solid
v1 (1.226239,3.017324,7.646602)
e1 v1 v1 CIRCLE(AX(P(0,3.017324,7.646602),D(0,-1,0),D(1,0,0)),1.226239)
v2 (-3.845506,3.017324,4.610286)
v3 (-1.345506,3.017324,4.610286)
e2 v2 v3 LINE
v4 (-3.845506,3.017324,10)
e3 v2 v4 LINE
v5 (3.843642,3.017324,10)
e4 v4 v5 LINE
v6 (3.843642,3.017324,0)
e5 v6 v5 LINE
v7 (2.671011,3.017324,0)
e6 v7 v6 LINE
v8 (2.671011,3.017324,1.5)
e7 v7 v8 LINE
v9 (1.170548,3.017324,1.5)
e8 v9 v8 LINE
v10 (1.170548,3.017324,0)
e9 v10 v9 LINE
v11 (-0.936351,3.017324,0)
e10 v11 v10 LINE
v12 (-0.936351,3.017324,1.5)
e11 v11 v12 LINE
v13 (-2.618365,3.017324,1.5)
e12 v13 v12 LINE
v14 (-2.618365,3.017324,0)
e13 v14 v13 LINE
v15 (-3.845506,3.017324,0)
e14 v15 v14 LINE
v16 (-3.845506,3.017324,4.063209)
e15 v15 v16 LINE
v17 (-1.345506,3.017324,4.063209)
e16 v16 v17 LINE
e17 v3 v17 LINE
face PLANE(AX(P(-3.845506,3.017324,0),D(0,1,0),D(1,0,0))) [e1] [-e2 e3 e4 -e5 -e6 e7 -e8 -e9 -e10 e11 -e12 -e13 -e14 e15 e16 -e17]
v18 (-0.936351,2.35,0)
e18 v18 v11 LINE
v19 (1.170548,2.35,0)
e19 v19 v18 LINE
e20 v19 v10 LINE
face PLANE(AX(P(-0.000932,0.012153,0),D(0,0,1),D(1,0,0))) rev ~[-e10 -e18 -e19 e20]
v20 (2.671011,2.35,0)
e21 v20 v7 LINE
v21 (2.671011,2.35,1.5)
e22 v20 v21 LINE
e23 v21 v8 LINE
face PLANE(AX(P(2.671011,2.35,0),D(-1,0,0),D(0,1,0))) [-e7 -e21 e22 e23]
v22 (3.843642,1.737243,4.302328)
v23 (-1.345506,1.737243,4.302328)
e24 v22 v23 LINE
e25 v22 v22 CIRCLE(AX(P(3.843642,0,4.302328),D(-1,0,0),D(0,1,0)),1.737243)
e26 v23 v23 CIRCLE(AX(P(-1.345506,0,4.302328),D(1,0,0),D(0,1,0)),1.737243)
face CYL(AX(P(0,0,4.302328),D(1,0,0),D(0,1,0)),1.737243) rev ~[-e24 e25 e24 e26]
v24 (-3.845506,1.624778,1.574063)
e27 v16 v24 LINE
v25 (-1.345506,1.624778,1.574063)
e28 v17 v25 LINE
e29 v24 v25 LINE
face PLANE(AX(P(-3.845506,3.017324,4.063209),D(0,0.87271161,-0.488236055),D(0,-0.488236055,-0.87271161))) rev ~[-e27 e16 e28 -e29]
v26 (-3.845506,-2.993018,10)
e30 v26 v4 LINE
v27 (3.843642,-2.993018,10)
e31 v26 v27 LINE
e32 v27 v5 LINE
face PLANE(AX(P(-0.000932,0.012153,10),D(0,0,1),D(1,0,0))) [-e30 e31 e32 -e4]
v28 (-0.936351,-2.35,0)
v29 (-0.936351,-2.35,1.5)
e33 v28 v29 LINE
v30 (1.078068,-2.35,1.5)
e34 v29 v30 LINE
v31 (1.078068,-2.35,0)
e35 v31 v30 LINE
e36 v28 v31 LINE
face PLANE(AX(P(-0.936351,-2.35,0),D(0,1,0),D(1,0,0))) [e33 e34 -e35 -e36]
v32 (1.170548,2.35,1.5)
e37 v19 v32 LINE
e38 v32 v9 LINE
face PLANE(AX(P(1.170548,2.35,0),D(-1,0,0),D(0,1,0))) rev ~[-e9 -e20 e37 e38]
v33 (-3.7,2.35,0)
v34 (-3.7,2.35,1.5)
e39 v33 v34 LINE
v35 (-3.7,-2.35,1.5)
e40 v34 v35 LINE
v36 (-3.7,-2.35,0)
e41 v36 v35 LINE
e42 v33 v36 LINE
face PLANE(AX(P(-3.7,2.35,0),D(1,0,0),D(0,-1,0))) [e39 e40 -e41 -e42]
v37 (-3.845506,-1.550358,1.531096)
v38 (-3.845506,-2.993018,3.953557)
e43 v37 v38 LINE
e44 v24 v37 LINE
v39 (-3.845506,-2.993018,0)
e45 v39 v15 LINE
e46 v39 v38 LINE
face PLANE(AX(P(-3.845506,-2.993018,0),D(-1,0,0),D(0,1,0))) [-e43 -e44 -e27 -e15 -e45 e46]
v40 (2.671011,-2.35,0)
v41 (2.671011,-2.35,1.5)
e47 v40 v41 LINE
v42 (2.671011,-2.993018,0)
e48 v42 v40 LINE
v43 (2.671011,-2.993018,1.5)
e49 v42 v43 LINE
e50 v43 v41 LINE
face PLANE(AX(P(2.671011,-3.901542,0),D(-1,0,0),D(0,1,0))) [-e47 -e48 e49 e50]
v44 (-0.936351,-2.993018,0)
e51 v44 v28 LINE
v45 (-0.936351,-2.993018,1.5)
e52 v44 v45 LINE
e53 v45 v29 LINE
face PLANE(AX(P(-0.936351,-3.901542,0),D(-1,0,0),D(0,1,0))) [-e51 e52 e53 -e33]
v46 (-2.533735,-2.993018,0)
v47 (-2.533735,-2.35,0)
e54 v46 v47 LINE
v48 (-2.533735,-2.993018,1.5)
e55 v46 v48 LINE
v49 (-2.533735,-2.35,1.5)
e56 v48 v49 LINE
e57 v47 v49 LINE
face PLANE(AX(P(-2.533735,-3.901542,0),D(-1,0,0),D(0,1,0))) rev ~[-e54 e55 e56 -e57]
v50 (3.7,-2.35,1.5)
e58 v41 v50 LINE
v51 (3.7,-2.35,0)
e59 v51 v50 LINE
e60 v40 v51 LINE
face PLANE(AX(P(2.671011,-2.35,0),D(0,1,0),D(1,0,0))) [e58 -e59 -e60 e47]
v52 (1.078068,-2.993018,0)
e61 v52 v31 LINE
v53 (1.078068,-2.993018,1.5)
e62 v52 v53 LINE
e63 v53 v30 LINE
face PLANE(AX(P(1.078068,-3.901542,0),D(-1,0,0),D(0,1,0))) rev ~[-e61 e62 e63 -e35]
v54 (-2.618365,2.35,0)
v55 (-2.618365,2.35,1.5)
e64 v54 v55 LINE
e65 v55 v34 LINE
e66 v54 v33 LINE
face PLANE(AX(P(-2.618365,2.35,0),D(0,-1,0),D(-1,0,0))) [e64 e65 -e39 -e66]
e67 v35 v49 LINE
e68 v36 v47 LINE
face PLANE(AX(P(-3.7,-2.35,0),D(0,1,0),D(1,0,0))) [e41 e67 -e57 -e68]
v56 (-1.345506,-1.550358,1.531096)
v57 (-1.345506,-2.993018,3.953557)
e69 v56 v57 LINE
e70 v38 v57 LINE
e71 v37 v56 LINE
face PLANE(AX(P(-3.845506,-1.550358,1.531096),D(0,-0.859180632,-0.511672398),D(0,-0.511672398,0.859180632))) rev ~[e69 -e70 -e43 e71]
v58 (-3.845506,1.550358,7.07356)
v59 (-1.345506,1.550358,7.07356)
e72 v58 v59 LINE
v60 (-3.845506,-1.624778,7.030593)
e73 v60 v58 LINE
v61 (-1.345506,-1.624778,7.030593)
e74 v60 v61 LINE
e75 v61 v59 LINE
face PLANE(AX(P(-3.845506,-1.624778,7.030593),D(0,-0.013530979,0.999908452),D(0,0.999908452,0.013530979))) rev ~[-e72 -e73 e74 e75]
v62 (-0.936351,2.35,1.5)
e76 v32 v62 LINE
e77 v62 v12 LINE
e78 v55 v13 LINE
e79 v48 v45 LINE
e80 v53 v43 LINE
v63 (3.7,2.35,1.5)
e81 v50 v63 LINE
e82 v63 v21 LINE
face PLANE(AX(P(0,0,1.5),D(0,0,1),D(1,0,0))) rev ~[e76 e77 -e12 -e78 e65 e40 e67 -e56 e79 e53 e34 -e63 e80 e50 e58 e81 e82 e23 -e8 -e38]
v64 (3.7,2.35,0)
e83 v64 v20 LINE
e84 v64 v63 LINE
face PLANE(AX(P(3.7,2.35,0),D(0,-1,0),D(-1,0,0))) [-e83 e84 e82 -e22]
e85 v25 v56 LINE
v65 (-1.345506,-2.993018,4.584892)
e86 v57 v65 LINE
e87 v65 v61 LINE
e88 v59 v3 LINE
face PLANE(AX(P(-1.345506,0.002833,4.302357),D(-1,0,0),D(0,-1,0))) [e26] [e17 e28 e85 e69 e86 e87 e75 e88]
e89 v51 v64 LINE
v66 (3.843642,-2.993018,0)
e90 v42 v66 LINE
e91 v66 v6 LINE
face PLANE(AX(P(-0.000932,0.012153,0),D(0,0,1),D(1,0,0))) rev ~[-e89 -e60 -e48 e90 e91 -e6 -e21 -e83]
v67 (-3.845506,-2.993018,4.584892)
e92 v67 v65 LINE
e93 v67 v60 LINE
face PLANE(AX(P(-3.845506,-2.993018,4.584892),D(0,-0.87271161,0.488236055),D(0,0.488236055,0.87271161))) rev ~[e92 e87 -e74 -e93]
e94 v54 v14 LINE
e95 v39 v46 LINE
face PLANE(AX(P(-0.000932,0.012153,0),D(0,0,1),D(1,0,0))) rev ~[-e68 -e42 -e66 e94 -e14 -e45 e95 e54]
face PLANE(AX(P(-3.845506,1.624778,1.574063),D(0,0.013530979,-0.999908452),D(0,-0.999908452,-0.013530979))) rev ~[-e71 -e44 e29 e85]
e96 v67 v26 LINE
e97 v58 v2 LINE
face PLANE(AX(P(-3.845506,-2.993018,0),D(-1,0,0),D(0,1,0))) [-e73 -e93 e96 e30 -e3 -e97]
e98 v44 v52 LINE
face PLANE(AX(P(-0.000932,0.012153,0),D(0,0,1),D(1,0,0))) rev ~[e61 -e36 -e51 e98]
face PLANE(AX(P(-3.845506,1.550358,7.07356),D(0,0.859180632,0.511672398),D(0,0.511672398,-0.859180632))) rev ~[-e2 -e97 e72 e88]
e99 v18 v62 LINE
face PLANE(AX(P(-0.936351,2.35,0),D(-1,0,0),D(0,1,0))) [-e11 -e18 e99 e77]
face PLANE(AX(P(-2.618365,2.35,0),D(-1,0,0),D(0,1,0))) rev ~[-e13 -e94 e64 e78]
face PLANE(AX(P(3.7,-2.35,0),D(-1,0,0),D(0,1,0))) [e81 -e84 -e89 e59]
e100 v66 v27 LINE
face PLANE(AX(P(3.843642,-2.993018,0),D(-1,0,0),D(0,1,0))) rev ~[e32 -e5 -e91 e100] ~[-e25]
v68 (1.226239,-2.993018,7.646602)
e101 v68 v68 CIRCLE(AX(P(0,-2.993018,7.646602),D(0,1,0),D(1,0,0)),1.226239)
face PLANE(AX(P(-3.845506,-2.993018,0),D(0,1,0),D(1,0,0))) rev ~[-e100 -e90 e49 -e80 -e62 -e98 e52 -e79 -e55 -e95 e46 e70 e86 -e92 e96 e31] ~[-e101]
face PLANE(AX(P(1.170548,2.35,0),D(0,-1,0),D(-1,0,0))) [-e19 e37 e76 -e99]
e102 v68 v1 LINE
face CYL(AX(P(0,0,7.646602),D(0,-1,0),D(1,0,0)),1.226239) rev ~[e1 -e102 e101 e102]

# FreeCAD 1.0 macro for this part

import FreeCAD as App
import Part
import Sketcher

V = App.Vector
Q = App.Units.Quantity


def add_polygon(sketch, points):
    """Adds a closed chain of lines whose ends are joined by coincident constraints."""
    first, n = sketch.GeometryCount, len(points)
    for a, b in zip(points, points[1:] + points[:1]):
        sketch.addGeometry(Part.LineSegment(App.Vector(*a, 0), App.Vector(*b, 0)), False)
    for i in range(n):
        sketch.addConstraint(Sketcher.Constraint("Coincident", first + i, 2, first + (i + 1) % n, 1))

doc = App.newDocument("Part")
body = doc.addObject("PartDesign::Body", "Body")

# Sketch on XY plane
sketch1 = body.newObject("Sketcher::SketchObject", "Sketch")
sketch1.AttachmentSupport = (doc.getObject("XY_Plane"), [""])
sketch1.MapMode = "FlatFace"
add_polygon(sketch1, [(-3.845506, 3.017324), (-3.845506, -2.993018), (3.843642, -2.993018), (3.843642, 3.017324)])  # lines 0-3
sketch1.addConstraint([
    Sketcher.Constraint("Vertical", 0),
    Sketcher.Constraint("Horizontal", 1),
    Sketcher.Constraint("Vertical", 2),
    Sketcher.Constraint("Horizontal", 3),
    Sketcher.Constraint("DistanceX", 1, 1, 1, 2, Q("7.689148 mm")),
    Sketcher.Constraint("DistanceY", 0, 2, 0, 1, Q("6.010342 mm")),
    Sketcher.Constraint("DistanceY", 0, 2, -1, 1, Q("2.993018 mm")),
    Sketcher.Constraint("DistanceX", 0, 2, -1, 1, Q("3.845506 mm")),
])
pad1 = body.newObject("PartDesign::Pad", "Pad")
pad1.Profile = sketch1
pad1.Length = 10

# Sketch on XY plane
sketch2 = body.newObject("Sketcher::SketchObject", "Sketch001")
sketch2.AttachmentSupport = (doc.getObject("XY_Plane"), [""])
sketch2.MapMode = "FlatFace"
add_polygon(sketch2, [(-3.7, 2.35), (-3.7, -2.35), (-2.533735, -2.35), (-2.533735, -3.901542), (-0.936351, -3.901542), (-0.936351, -2.35), (1.078068, -2.35), (1.078068, -3.901542), (2.671011, -3.901542), (2.671011, -2.35), (3.7, -2.35), (3.7, 2.35), (2.671011, 2.35), (2.671011, 3.562701), (1.170548, 3.562701), (1.170548, 2.35), (-0.936351, 2.35), (-0.936351, 3.562701), (-2.618365, 3.562701), (-2.618365, 2.35)])  # lines 0-19
sketch2.addConstraint([
    Sketcher.Constraint("Vertical", 0),
    Sketcher.Constraint("Horizontal", 1),
    Sketcher.Constraint("Vertical", 2),
    Sketcher.Constraint("Horizontal", 3),
    Sketcher.Constraint("Vertical", 4),
    Sketcher.Constraint("Horizontal", 5),
    Sketcher.Constraint("Vertical", 6),
    Sketcher.Constraint("Horizontal", 7),
    Sketcher.Constraint("Vertical", 8),
    Sketcher.Constraint("Horizontal", 9),
    Sketcher.Constraint("Vertical", 10),
    Sketcher.Constraint("Horizontal", 11),
    Sketcher.Constraint("Vertical", 12),
    Sketcher.Constraint("Horizontal", 13),
    Sketcher.Constraint("Vertical", 14),
    Sketcher.Constraint("Horizontal", 15),
    Sketcher.Constraint("Vertical", 16),
    Sketcher.Constraint("Horizontal", 17),
    Sketcher.Constraint("Vertical", 18),
    Sketcher.Constraint("Horizontal", 19),
    Sketcher.Constraint("Symmetric", 0, 2, 10, 2, -1, 1),
    Sketcher.Constraint("Symmetric", 8, 2, 11, 2, -1),
    Sketcher.Constraint("Symmetric", 4, 2, 15, 2, -1),
    Sketcher.Constraint("Horizontal", 1, 2, 4, 2),
    Sketcher.Constraint("Horizontal", 3, 2, 6, 2),
    Sketcher.Constraint("Horizontal", 13, 2, 16, 2),
    Sketcher.Constraint("Horizontal", 15, 2, 18, 2),
    Sketcher.Constraint("DistanceY", 0, 2, 0, 1, Q("4.7 mm")),
    Sketcher.Constraint("DistanceX", 0, 2, -1, 1, Q("3.7 mm")),
    Sketcher.Constraint("DistanceX", 15, 2, 15, 1, Q("2.106899 mm")),
    Sketcher.Constraint("DistanceY", 12, 1, 12, 2, Q("1.212701 mm")),
    Sketcher.Constraint("DistanceX", 5, 1, 5, 2, Q("2.014419 mm")),
    Sketcher.Constraint("DistanceX", 9, 1, 9, 2, Q("1.028989 mm")),
    Sketcher.Constraint("DistanceX", 1, 1, 1, 2, Q("1.166265 mm")),
    Sketcher.Constraint("DistanceX", 3, 1, 3, 2, Q("1.597383 mm")),
    Sketcher.Constraint("DistanceX", 17, 2, 17, 1, Q("1.682013 mm")),
    Sketcher.Constraint("DistanceY", 2, 2, 2, 1, Q("1.551542 mm")),
])
pocket1 = body.newObject("PartDesign::Pocket", "Pocket")
pocket1.Profile = sketch2
pocket1.Length = 1.5
pocket1.Reversed = True

# Sketch on YZ plane
sketch3 = body.newObject("Sketcher::SketchObject", "Sketch002")
sketch3.AttachmentSupport = (doc.getObject("YZ_Plane"), [""])
sketch3.MapMode = "FlatFace"
sketch3.addGeometry(Part.Circle(V(0, 4.302328, 0), V(0, 0, 1), 1.737243), False)
sketch3.addConstraint([
    Sketcher.Constraint("PointOnObject", 0, 3, -2),
    Sketcher.Constraint("Diameter", 0, Q("3.474486 mm")),
    Sketcher.Constraint("DistanceY", -1, 1, 0, 3, Q("4.302328 mm")),
])
pocket2 = body.newObject("PartDesign::Pocket", "Pocket001")
pocket2.Profile = sketch3
pocket2.Type = "ThroughAll"
pocket2.Midplane = True

# Sketch on XZ plane
sketch4 = body.newObject("Sketcher::SketchObject", "Sketch003")
sketch4.AttachmentSupport = (doc.getObject("XZ_Plane"), [""])
sketch4.MapMode = "FlatFace"
sketch4.addGeometry(Part.Circle(V(0, 7.646602, 0), V(0, 0, 1), 1.226239), False)
sketch4.addConstraint([
    Sketcher.Constraint("PointOnObject", 0, 3, -2),
    Sketcher.Constraint("Diameter", 0, Q("2.452479 mm")),
    Sketcher.Constraint("DistanceY", -1, 1, 0, 3, Q("7.646602 mm")),
])
pocket3 = body.newObject("PartDesign::Pocket", "Pocket002")
pocket3.Profile = sketch4
pocket3.Type = "ThroughAll"
pocket3.Midplane = True

# Sketch on YZ plane
sketch5 = body.newObject("Sketcher::SketchObject", "Sketch004")
sketch5.AttachmentSupport = (doc.getObject("YZ_Plane"), [""])
sketch5.MapMode = "FlatFace"
sketch5.AttachmentOffset = App.Placement(V(0, 0, -3.845506), App.Rotation())
add_polygon(sketch5, [(-2.993018, 4.584892), (-1.624778, 7.030593), (1.550358, 7.07356), (3.017324, 4.610286), (3.017324, 4.063209), (1.624778, 1.574063), (-1.550358, 1.531096), (-2.993018, 3.953557)])  # lines 0-7
sketch5.addGeometry(Part.Circle(V(0, 4.302328, 0), V(0, 0, 1), 1.737243), False)  # 8
sketch5.addConstraint([
    Sketcher.Constraint("Vertical", 3),
    Sketcher.Constraint("Vertical", 7),
    Sketcher.Constraint("PointOnObject", 8, 3, -2),
    Sketcher.Constraint("Parallel", 0, 4),
    Sketcher.Constraint("Parallel", 1, 5),
    Sketcher.Constraint("Parallel", 2, 6),
    Sketcher.Constraint("Equal", 1, 5),
    Sketcher.Constraint("Diameter", 8, Q("3.474486 mm")),
    Sketcher.Constraint("Distance", 6, Q("2.819501 mm")),
    Sketcher.Constraint("DistanceX", 0, 2, 2, 2, Q("4.642102 mm")),
    Sketcher.Constraint("DistanceY", 7, 2, 0, 2, Q("2.445701 mm")),
    Sketcher.Constraint("DistanceY", 3, 2, 3, 1, Q("0.547077 mm")),
    Sketcher.Constraint("DistanceY", 7, 1, 7, 2, Q("0.631336 mm")),
    Sketcher.Constraint("DistanceX", 0, 2, -1, 1, Q("1.624778 mm")),
    Sketcher.Constraint("DistanceY", -1, 1, 1, 2, Q("7.07356 mm")),
    Sketcher.Constraint("DistanceY", -1, 1, 3, 2, Q("4.063209 mm")),
    Sketcher.Constraint("DistanceX", -1, 1, 4, 2, Q("1.624778 mm")),
    Sketcher.Constraint("DistanceY", 8, 3, 1, 2, Q("2.771232 mm")),
    Sketcher.Constraint("DistanceY", 4, 2, 0, 2, Q("5.45653 mm")),
])
pocket4 = body.newObject("PartDesign::Pocket", "Pocket003")
pocket4.Profile = sketch5
pocket4.Length = 2.5
pocket4.Reversed = True

doc.recompute()
